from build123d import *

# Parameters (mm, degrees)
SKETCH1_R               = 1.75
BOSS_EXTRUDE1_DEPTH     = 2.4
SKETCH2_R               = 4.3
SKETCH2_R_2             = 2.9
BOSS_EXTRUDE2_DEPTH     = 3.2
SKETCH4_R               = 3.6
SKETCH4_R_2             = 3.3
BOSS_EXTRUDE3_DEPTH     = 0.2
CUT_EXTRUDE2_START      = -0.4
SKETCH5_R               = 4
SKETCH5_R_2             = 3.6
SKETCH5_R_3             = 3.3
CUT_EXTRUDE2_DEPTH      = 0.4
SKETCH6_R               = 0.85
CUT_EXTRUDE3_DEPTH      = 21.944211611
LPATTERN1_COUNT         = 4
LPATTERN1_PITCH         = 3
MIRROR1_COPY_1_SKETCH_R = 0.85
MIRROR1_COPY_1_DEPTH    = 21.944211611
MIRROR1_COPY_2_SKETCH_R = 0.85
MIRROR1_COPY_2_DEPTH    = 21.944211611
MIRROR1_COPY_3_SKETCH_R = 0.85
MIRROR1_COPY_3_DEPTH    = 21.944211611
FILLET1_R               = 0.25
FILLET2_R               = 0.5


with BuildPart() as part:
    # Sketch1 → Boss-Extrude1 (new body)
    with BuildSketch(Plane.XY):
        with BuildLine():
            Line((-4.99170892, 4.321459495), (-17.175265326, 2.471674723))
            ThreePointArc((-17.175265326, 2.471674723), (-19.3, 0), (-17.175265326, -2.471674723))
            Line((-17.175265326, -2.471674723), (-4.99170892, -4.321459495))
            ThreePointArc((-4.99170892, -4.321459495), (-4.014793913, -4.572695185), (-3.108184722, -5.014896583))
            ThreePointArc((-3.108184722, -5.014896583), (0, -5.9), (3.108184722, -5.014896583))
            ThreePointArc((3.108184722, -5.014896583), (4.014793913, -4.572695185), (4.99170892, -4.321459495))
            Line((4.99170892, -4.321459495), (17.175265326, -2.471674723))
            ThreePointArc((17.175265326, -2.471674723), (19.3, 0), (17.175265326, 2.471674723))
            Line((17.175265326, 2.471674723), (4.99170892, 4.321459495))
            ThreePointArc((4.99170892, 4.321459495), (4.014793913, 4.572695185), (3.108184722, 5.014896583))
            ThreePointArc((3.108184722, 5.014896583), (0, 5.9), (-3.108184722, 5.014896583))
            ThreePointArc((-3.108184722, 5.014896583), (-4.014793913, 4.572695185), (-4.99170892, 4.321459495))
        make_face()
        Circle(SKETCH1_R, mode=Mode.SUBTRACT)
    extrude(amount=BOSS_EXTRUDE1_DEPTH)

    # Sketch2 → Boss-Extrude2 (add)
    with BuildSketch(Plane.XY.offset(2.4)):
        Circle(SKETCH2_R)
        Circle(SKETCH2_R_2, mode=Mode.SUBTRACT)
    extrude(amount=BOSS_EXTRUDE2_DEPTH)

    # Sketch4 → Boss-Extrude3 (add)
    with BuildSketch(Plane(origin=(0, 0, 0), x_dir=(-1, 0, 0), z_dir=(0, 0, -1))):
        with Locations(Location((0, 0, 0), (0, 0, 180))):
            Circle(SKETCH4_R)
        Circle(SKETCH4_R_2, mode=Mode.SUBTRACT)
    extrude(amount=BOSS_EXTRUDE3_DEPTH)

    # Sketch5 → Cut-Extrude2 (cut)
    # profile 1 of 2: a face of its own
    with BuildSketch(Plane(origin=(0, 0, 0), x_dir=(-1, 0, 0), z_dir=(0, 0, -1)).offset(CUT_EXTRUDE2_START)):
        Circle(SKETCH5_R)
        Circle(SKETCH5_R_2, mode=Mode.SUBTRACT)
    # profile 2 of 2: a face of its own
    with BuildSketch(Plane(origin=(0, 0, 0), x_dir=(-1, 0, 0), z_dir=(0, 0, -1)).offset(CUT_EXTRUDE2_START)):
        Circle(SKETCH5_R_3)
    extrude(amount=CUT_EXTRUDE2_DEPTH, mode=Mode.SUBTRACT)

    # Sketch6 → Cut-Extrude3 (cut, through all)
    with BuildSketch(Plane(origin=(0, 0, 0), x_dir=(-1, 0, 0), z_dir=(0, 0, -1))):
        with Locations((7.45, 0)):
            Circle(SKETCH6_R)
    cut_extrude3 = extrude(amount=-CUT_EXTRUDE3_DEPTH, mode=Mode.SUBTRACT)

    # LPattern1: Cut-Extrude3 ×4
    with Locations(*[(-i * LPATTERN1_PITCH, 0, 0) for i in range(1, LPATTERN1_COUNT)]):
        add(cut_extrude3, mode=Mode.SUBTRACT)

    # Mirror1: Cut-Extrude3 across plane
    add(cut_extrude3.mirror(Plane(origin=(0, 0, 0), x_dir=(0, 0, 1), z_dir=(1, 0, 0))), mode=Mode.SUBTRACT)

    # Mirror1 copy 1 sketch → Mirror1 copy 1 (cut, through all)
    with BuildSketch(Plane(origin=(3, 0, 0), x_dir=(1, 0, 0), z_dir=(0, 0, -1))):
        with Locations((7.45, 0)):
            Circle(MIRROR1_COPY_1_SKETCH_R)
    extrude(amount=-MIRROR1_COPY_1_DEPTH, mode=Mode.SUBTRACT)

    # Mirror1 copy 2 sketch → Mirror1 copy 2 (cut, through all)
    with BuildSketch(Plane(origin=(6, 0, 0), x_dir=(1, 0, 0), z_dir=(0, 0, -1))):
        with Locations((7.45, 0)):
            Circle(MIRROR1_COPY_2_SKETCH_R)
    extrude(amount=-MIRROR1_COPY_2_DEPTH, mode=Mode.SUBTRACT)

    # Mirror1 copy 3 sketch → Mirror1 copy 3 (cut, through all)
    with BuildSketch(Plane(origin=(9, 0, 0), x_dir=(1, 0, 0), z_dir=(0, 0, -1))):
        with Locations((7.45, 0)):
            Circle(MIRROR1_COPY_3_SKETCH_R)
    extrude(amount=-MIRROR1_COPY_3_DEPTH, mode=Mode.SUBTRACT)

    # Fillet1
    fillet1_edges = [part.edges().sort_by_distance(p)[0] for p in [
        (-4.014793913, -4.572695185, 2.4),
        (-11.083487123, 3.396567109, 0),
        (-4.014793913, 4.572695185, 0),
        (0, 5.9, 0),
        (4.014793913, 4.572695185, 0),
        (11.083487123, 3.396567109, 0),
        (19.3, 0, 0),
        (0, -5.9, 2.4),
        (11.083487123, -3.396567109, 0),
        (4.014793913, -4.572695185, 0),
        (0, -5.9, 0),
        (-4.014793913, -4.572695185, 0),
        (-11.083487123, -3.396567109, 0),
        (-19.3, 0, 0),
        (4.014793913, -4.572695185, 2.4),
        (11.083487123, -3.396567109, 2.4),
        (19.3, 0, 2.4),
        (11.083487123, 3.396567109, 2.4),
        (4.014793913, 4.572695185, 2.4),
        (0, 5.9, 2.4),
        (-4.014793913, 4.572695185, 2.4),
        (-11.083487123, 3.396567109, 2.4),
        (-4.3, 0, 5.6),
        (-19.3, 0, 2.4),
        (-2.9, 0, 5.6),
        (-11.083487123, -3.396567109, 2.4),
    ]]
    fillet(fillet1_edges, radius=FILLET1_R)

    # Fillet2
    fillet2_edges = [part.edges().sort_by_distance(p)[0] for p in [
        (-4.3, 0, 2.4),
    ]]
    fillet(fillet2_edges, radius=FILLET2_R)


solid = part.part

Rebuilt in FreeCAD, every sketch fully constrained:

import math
import FreeCAD as App
import Part
import Sketcher
Q = App.Units.Quantity


def edges_at(feature, points):
    """Names of the edges that pass closest to the given points."""
    edges = feature.Shape.Edges
    near = lambda p: min(range(len(edges)), key=lambda i: edges[i].distToShape(Part.Vertex(*p))[0])
    return sorted({f"Edge{near(p) + 1}" for p in points})

doc = App.newDocument("Part")
body = doc.addObject("PartDesign::Body", "Body")

# Sketch on XY plane
sketch1 = doc.addObject("Sketcher::SketchObject", "Sketch")
body.addObject(sketch1)
sketch1.AttachmentSupport = (doc.XY_Plane, [""])
sketch1.MapMode = "FlatFace"
sketch1.addGeometry([
    Part.LineSegment(App.Vector(-5, 4.3, 0), App.Vector(-17.2, 2.5, 0)),  # 0
    Part.ArcOfCircle(Part.Circle(App.Vector(-16.8, 0, 0), App.Vector(0, 0, 1), 2.5), math.radians(99), math.radians(261)),  # 1
    Part.LineSegment(App.Vector(-17.2, -2.5, 0), App.Vector(-5, -4.3, 0)),  # 2
    Part.ArcOfCircle(Part.Circle(App.Vector(-5.7, -9.3, 0), App.Vector(0, 0, 1), 5), math.radians(58), math.radians(81)),  # 3
    Part.ArcOfCircle(Part.Circle(App.Vector(0, 0, 0), App.Vector(0, 0, 1), 5.9), math.radians(-122), math.radians(-58)),  # 4
    Part.ArcOfCircle(Part.Circle(App.Vector(5.7, -9.3, 0), App.Vector(0, 0, 1), 5), math.radians(99), math.radians(122)),  # 5
    Part.LineSegment(App.Vector(5, -4.3, 0), App.Vector(17.2, -2.5, 0)),  # 6
    Part.ArcOfCircle(Part.Circle(App.Vector(16.8, 0, 0), App.Vector(0, 0, 1), 2.5), math.radians(-81), math.radians(81)),  # 7
    Part.LineSegment(App.Vector(17.2, 2.5, 0), App.Vector(5, 4.3, 0)),  # 8
    Part.ArcOfCircle(Part.Circle(App.Vector(5.7, 9.3, 0), App.Vector(0, 0, 1), 5), math.radians(-122), math.radians(-99)),  # 9
    Part.ArcOfCircle(Part.Circle(App.Vector(0, 0, 0), App.Vector(0, 0, 1), 5.9), math.radians(58), math.radians(122)),  # 10
    Part.ArcOfCircle(Part.Circle(App.Vector(-5.7, 9.3, 0), App.Vector(0, 0, 1), 5), math.radians(-81), math.radians(-58)),  # 11
    Part.Circle(App.Vector(0, 0, 0), App.Vector(0, 0, 1), 1.8),  # 12
], False)
sketch1.addConstraint([
    Sketcher.Constraint("Tangent", 0, 2, 1, 1),
    Sketcher.Constraint("Tangent", 1, 2, 2, 1),
    Sketcher.Constraint("Tangent", 2, 2, 3, 2),
    Sketcher.Constraint("Tangent", 3, 1, 4, 1),
    Sketcher.Constraint("Tangent", 4, 2, 5, 2),
    Sketcher.Constraint("Tangent", 5, 1, 6, 1),
    Sketcher.Constraint("Tangent", 6, 2, 7, 1),
    Sketcher.Constraint("Tangent", 7, 2, 8, 1),
    Sketcher.Constraint("Tangent", 8, 2, 9, 2),
    Sketcher.Constraint("Tangent", 9, 1, 10, 1),
    Sketcher.Constraint("Tangent", 10, 2, 11, 2),
    Sketcher.Constraint("Tangent", 11, 1, 0, 1),
    Sketcher.Constraint("Coincident", 4, 3, -1, 1),
    Sketcher.Constraint("Coincident", 10, 3, -1, 1),
    Sketcher.Constraint("Coincident", 12, 3, -1, 1),
    Sketcher.Constraint("Equal", 3, 5),
    Sketcher.Constraint("Equal", 1, 7),
    Sketcher.Constraint("Equal", 5, 9),
    Sketcher.Constraint("Equal", 4, 10),
    Sketcher.Constraint("Equal", 9, 11),
    Sketcher.Constraint("Symmetric", 1, 3, 7, 3, -1, 1),
    Sketcher.Constraint("Symmetric", 2, 2, 5, 1, -2),
    Sketcher.Constraint("Parallel", 0, 6),
    Sketcher.Constraint("Parallel", 2, 8),
    Sketcher.Constraint("Radius", 3, Q("5 mm")),
    Sketcher.Constraint("Diameter", 12, Q("3.5 mm")),
    Sketcher.Constraint("Radius", 1, Q("2.5 mm")),
    Sketcher.Constraint("Radius", 4, Q("5.9 mm")),
    Sketcher.Constraint("DistanceX", 1, 3, -1, 1, Q("16.8 mm")),
    Sketcher.Constraint("Distance", 0, Q("12.323179 mm")),
])
pad1 = doc.addObject("PartDesign::Pad", "Pad")
body.addObject(pad1)
pad1.Profile = sketch1
pad1.Length = 2.4

# Sketch on XY plane
sketch2 = doc.addObject("Sketcher::SketchObject", "Sketch001")
body.addObject(sketch2)
sketch2.AttachmentSupport = (doc.XY_Plane, [""])
sketch2.MapMode = "FlatFace"
sketch2.AttachmentOffset = App.Placement(App.Vector(0, 0, 2.4), App.Rotation())
sketch2.addGeometry([
    Part.Circle(App.Vector(0, 0, 0), App.Vector(0, 0, 1), 4.3),
    Part.Circle(App.Vector(0, 0, 0), App.Vector(0, 0, 1), 2.9),
], False)
sketch2.addConstraint([
    Sketcher.Constraint("Coincident", 0, 3, -1, 1),
    Sketcher.Constraint("Coincident", 1, 3, -1, 1),
    Sketcher.Constraint("Diameter", 0, Q("8.6 mm")),
    Sketcher.Constraint("Diameter", 1, Q("5.8 mm")),
])
pad2 = doc.addObject("PartDesign::Pad", "Pad001")
body.addObject(pad2)
pad2.Profile = sketch2
pad2.Length = 3.2

# Sketch on XY plane
sketch3 = doc.addObject("Sketcher::SketchObject", "Sketch002")
body.addObject(sketch3)
sketch3.AttachmentSupport = (doc.XY_Plane, [""])
sketch3.MapMode = "FlatFace"
sketch3.addGeometry([
    Part.Circle(App.Vector(0, 0, 0), App.Vector(0, 0, 1), 3.6),
    Part.Circle(App.Vector(0, 0, 0), App.Vector(0, 0, 1), 3.3),
], False)
sketch3.addConstraint([
    Sketcher.Constraint("Coincident", 0, 3, -1, 1),
    Sketcher.Constraint("Coincident", 1, 3, -1, 1),
    Sketcher.Constraint("Diameter", 0, Q("7.2 mm")),
    Sketcher.Constraint("Diameter", 1, Q("6.6 mm")),
])
pad3 = doc.addObject("PartDesign::Pad", "Pad002")
body.addObject(pad3)
pad3.Profile = sketch3
pad3.Length = 0.2
pad3.Reversed = True

# Sketch on XY plane
sketch4 = doc.addObject("Sketcher::SketchObject", "Sketch003")
body.addObject(sketch4)
sketch4.AttachmentSupport = (doc.XY_Plane, [""])
sketch4.MapMode = "FlatFace"
sketch4.AttachmentOffset = App.Placement(App.Vector(0, 0, 0.4), App.Rotation())
sketch4.addGeometry([
    Part.Circle(App.Vector(0, 0, 0), App.Vector(0, 0, 1), 4),
    Part.Circle(App.Vector(0, 0, 0), App.Vector(0, 0, 1), 3.6),
    Part.Circle(App.Vector(0, 0, 0), App.Vector(0, 0, 1), 3.3),
], False)
sketch4.addConstraint([
    Sketcher.Constraint("Coincident", 0, 3, -1, 1),
    Sketcher.Constraint("Coincident", 1, 3, -1, 1),
    Sketcher.Constraint("Coincident", 2, 3, -1, 1),
    Sketcher.Constraint("Diameter", 0, Q("8 mm")),
    Sketcher.Constraint("Diameter", 1, Q("7.2 mm")),
    Sketcher.Constraint("Diameter", 2, Q("6.6 mm")),
])
pocket1 = doc.addObject("PartDesign::Pocket", "Pocket")
body.addObject(pocket1)
pocket1.Profile = sketch4
pocket1.Length = 0.4

# Sketch on XY plane
sketch5 = doc.addObject("Sketcher::SketchObject", "Sketch004")
body.addObject(sketch5)
sketch5.AttachmentSupport = (doc.XY_Plane, [""])
sketch5.MapMode = "FlatFace"
sketch5.addGeometry(Part.Circle(App.Vector(-7.5, 0, 0), App.Vector(0, 0, 1), 0.8), False)
sketch5.addConstraint([
    Sketcher.Constraint("PointOnObject", 0, 3, -1),
    Sketcher.Constraint("Diameter", 0, Q("1.7 mm")),
    Sketcher.Constraint("DistanceX", 0, 3, -1, 1, Q("7.45 mm")),
])
pocket2 = doc.addObject("PartDesign::Pocket", "Pocket001")
body.addObject(pocket2)
pocket2.Profile = sketch5
pocket2.Type = "ThroughAll"
pocket2.Reversed = True
doc.recompute()

linearpattern = doc.addObject("PartDesign::LinearPattern", "LinearPattern")
body.addObject(linearpattern)
linearpattern.Originals = [pocket2]
linearpattern.Direction = (doc.X_Axis, [""])
linearpattern.Mode = "offset"
linearpattern.Offset = 3
linearpattern.Occurrences = 4
linearpattern.Reversed = True
body.Tip = linearpattern
doc.recompute()

mirrored = doc.addObject("PartDesign::Mirrored", "Mirrored")
body.addObject(mirrored)
mirrored.Originals = [pocket2]
mirrored.MirrorPlane = (doc.YZ_Plane, [""])
body.Tip = mirrored

# Sketch on XY plane
sketch6 = doc.addObject("Sketcher::SketchObject", "Sketch005")
body.addObject(sketch6)
sketch6.AttachmentSupport = (doc.XY_Plane, [""])
sketch6.MapMode = "FlatFace"
sketch6.addGeometry(Part.Circle(App.Vector(10.4, 0, 0), App.Vector(0, 0, 1), 0.8), False)
sketch6.addConstraint([
    Sketcher.Constraint("PointOnObject", 0, 3, -1),
    Sketcher.Constraint("Diameter", 0, Q("1.7 mm")),
    Sketcher.Constraint("DistanceX", -1, 1, 0, 3, Q("10.45 mm")),
])
pocket3 = doc.addObject("PartDesign::Pocket", "Pocket002")
body.addObject(pocket3)
pocket3.Profile = sketch6
pocket3.Type = "ThroughAll"
pocket3.Reversed = True

# Sketch on XY plane
sketch7 = doc.addObject("Sketcher::SketchObject", "Sketch006")
body.addObject(sketch7)
sketch7.AttachmentSupport = (doc.XY_Plane, [""])
sketch7.MapMode = "FlatFace"
sketch7.addGeometry(Part.Circle(App.Vector(13.4, 0, 0), App.Vector(0, 0, 1), 0.8), False)
sketch7.addConstraint([
    Sketcher.Constraint("PointOnObject", 0, 3, -1),
    Sketcher.Constraint("Diameter", 0, Q("1.7 mm")),
    Sketcher.Constraint("DistanceX", -1, 1, 0, 3, Q("13.45 mm")),
])
pocket4 = doc.addObject("PartDesign::Pocket", "Pocket003")
body.addObject(pocket4)
pocket4.Profile = sketch7
pocket4.Type = "ThroughAll"
pocket4.Reversed = True

# Sketch on XY plane
sketch8 = doc.addObject("Sketcher::SketchObject", "Sketch007")
body.addObject(sketch8)
sketch8.AttachmentSupport = (doc.XY_Plane, [""])
sketch8.MapMode = "FlatFace"
sketch8.addGeometry(Part.Circle(App.Vector(16.4, 0, 0), App.Vector(0, 0, 1), 0.8), False)
sketch8.addConstraint([
    Sketcher.Constraint("PointOnObject", 0, 3, -1),
    Sketcher.Constraint("Diameter", 0, Q("1.7 mm")),
    Sketcher.Constraint("DistanceX", -1, 1, 0, 3, Q("16.45 mm")),
])
pocket5 = doc.addObject("PartDesign::Pocket", "Pocket004")
body.addObject(pocket5)
pocket5.Profile = sketch8
pocket5.Type = "ThroughAll"
pocket5.Reversed = True
doc.recompute()

fillet = doc.addObject("PartDesign::Fillet", "Fillet")
body.addObject(fillet)
fillet.Base = (pocket5, edges_at(pocket5, [
    (-4.015, -4.573, 2.4),
    (-11.083, 3.397, 0),
    (-4.015, 4.573, 0),
    (0, 5.9, 0),
    (4.015, 4.573, 0),
    (11.083, 3.397, 0),
    (19.3, 0, 0),
    (0, -5.9, 2.4),
    (11.083, -3.397, 0),
    (4.015, -4.573, 0),
    (0, -5.9, 0),
    (-4.015, -4.573, 0),
    (-11.083, -3.397, 0),
    (-19.3, 0, 0),
    (4.015, -4.573, 2.4),
    (11.083, -3.397, 2.4),
    (19.3, 0, 2.4),
    (11.083, 3.397, 2.4),
    (4.015, 4.573, 2.4),
    (0, 5.9, 2.4),
    (-4.015, 4.573, 2.4),
    (-11.083, 3.397, 2.4),
    (-4.3, 0, 5.6),
    (-19.3, 0, 2.4),
    (-2.9, 0, 5.6),
    (-11.083, -3.397, 2.4),
]))
fillet.Radius = 0.25
doc.recompute()

fillet2 = doc.addObject("PartDesign::Fillet", "Fillet001")
body.addObject(fillet2)
fillet2.Base = (fillet, edges_at(fillet, [(-4.3, 0, 2.4)]))
fillet2.Radius = 0.5

doc.recompute()
